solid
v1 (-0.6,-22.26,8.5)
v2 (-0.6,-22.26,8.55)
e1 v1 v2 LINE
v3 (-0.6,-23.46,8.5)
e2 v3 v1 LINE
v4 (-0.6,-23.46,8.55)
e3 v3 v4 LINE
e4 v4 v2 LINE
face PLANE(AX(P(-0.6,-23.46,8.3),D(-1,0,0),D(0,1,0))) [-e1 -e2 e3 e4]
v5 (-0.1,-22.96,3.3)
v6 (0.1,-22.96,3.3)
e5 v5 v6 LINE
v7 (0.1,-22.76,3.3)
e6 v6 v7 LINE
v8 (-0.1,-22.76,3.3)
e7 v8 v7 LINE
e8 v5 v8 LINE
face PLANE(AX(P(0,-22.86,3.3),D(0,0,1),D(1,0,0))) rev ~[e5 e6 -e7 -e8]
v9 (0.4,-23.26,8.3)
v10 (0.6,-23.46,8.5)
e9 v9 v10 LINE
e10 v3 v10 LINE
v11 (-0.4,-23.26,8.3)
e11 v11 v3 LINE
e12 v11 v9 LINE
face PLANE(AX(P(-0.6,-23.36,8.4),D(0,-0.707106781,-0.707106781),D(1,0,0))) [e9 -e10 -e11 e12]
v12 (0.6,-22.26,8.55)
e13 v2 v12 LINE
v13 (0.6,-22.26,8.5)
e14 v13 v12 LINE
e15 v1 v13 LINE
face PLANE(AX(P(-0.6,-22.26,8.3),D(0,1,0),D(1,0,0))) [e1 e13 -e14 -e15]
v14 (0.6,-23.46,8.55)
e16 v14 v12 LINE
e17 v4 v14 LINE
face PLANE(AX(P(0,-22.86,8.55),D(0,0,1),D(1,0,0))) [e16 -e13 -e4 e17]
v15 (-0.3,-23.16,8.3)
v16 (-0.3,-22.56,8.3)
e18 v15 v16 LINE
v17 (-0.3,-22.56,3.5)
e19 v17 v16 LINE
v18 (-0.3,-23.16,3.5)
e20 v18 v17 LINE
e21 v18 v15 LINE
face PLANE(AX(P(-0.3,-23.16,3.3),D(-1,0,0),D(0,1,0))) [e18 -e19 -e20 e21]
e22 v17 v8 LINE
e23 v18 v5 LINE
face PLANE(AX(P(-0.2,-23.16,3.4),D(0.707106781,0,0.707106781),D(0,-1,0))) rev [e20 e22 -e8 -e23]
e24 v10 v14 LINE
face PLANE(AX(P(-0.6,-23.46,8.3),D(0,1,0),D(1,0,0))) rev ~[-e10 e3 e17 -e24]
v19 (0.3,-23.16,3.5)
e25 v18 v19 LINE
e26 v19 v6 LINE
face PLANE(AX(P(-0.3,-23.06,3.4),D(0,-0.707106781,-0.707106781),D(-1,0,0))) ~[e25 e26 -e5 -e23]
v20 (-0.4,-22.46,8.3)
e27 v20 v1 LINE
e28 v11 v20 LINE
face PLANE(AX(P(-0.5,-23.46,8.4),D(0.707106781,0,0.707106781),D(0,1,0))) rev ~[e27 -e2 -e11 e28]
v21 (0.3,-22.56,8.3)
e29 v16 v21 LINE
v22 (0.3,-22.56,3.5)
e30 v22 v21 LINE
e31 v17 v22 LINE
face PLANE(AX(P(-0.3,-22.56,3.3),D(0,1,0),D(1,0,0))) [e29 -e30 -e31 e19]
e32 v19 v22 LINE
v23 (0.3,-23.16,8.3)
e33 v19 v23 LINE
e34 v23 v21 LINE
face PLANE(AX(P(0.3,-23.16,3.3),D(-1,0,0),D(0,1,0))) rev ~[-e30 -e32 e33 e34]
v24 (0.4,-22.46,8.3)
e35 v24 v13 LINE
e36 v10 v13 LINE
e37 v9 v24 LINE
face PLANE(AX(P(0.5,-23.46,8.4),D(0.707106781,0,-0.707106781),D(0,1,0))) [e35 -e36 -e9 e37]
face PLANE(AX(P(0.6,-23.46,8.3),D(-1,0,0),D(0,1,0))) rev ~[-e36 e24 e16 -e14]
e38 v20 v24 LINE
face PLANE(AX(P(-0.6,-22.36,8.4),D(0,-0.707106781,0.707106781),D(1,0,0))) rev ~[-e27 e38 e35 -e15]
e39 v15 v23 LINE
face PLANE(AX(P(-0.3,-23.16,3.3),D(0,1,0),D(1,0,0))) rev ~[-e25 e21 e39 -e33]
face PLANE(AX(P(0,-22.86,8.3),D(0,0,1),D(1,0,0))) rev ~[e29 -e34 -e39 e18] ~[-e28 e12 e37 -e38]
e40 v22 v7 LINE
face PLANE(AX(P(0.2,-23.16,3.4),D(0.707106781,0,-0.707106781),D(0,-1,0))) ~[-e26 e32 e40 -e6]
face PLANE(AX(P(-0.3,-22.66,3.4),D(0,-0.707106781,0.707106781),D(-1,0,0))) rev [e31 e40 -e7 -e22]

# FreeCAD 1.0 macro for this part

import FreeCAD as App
import Part
import Sketcher

V = App.Vector


def edges_at(feature, points):
    """Names of the edges that pass closest to the given points."""
    edges = feature.Shape.Edges
    near = lambda p: min(range(len(edges)), key=lambda i: edges[i].distToShape(Part.Vertex(*p))[0])
    return sorted({f"Edge{near(p) + 1}" for p in points})

doc = App.newDocument("Part")
params = doc.addObject("Spreadsheet::Sheet", "Params")
for row, (alias, value) in enumerate([
    ("sketch1_width", "0.6 mm"),
    ("pad1_length", "5 mm"),
    ("sketch2_width", "1.2 mm"),
    ("pad2_length", "0.25 mm"),
    ("chamfer_size", "0.2 mm"),
    ("chamfer2_size", "0.2 mm"),
], start=1):
    params.set(f"A{row}", alias)
    params.set(f"B{row}", "=" + value)
    params.setAlias(f"B{row}", alias)

body = doc.addObject("PartDesign::Body", "Body")

# Sketch on XY plane
sketch1 = body.newObject("Sketcher::SketchObject", "Sketch")
sketch1.AttachmentSupport = (doc.getObject("XY_Plane"), [""])
sketch1.MapMode = "FlatFace"
sketch1.addGeometry([
    Part.LineSegment(V(-0.3, 0.3, 0), V(-0.3, -0.3, 0)),
    Part.LineSegment(V(-0.3, -0.3, 0), V(0.3, -0.3, 0)),
    Part.LineSegment(V(0.3, -0.3, 0), V(0.3, 0.3, 0)),
    Part.LineSegment(V(0.3, 0.3, 0), V(-0.3, 0.3, 0)),
], False)
sketch1.addConstraint([
    Sketcher.Constraint("Coincident", 0, 2, 1, 1),
    Sketcher.Constraint("Coincident", 1, 2, 2, 1),
    Sketcher.Constraint("Coincident", 2, 2, 3, 1),
    Sketcher.Constraint("Coincident", 3, 2, 0, 1),
    Sketcher.Constraint("Vertical", 0),
    Sketcher.Constraint("Horizontal", 1),
    Sketcher.Constraint("Vertical", 2),
    Sketcher.Constraint("Horizontal", 3),
    Sketcher.Constraint("Symmetric", 0, 2, 2, 2, -1, 1),
    Sketcher.Constraint("Equal", 3, 0),
    Sketcher.Constraint("DistanceX", 1, 1, 1, 2, 0.6),
])
sketch1.setExpression("Constraints[10]", "Params.sketch1_width")
pad1 = body.newObject("PartDesign::Pad", "Pad")
pad1.Profile = sketch1
pad1.setExpression("Length", "Params.pad1_length")

# Sketch on XY plane
sketch2 = body.newObject("Sketcher::SketchObject", "Sketch001")
sketch2.AttachmentSupport = (doc.getObject("XY_Plane"), [""])
sketch2.MapMode = "FlatFace"
sketch2.AttachmentOffset = App.Placement(V(0, 0, 5), App.Rotation())
sketch2.addGeometry([
    Part.LineSegment(V(-0.6, 0.6, 0), V(-0.6, -0.6, 0)),
    Part.LineSegment(V(-0.6, -0.6, 0), V(0.6, -0.6, 0)),
    Part.LineSegment(V(0.6, -0.6, 0), V(0.6, 0.6, 0)),
    Part.LineSegment(V(0.6, 0.6, 0), V(-0.6, 0.6, 0)),
], False)
sketch2.addConstraint([
    Sketcher.Constraint("Coincident", 0, 2, 1, 1),
    Sketcher.Constraint("Coincident", 1, 2, 2, 1),
    Sketcher.Constraint("Coincident", 2, 2, 3, 1),
    Sketcher.Constraint("Coincident", 3, 2, 0, 1),
    Sketcher.Constraint("Vertical", 0),
    Sketcher.Constraint("Horizontal", 1),
    Sketcher.Constraint("Vertical", 2),
    Sketcher.Constraint("Horizontal", 3),
    Sketcher.Constraint("Symmetric", 0, 2, 2, 2, -1, 1),
    Sketcher.Constraint("Equal", 3, 0),
    Sketcher.Constraint("DistanceX", 1, 1, 1, 2, 1.2),
])
sketch2.setExpression("Constraints[10]", "Params.sketch2_width")
pad2 = body.newObject("PartDesign::Pad", "Pad001")
pad2.Profile = sketch2
pad2.setExpression("Length", "Params.pad2_length")
doc.recompute()

chamfer = body.newObject("PartDesign::Chamfer", "Chamfer")
chamfer.Base = (pad2, edges_at(pad2, [
    (0, -0.3, 0),
    (0.3, 0, 0),
    (0, 0.3, 0),
    (-0.3, 0, 0),
]))
chamfer.setExpression("Size", "Params.chamfer_size")
doc.recompute()

chamfer2 = body.newObject("PartDesign::Chamfer", "Chamfer001")
chamfer2.Base = (chamfer, edges_at(chamfer, [
    (-0.6, 0, 5),
    (0, 0.6, 5),
    (0.6, 0, 5),
    (0, -0.6, 5),
]))
chamfer2.setExpression("Size", "Params.chamfer2_size")
body2 = doc.addObject("PartDesign::Body", "Body001")
doc.recompute()

body.Placement = App.Placement(V(0, -22.86, 3.3), App.Rotation(V(0, 0, 1), 0))
boolean = body2.newObject("PartDesign::Boolean", "Boolean")
boolean.Type = "Fuse"
boolean.addObjects([body])

doc.recompute()
